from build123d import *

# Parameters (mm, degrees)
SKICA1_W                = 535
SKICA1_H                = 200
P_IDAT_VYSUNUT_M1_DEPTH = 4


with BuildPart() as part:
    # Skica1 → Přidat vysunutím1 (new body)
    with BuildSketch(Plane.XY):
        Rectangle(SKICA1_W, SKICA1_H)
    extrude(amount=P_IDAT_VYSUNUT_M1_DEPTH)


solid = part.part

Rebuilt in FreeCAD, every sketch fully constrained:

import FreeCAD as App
import Part
import Sketcher

V = App.Vector


def add_polygon(sketch, points):
    """Adds a closed chain of lines whose ends are joined by coincident constraints."""
    first, n = sketch.GeometryCount, len(points)
    for a, b in zip(points, points[1:] + points[:1]):
        sketch.addGeometry(Part.LineSegment(App.Vector(*a, 0), App.Vector(*b, 0)), False)
    for i in range(n):
        sketch.addConstraint(Sketcher.Constraint("Coincident", first + i, 2, first + (i + 1) % n, 1))

doc = App.newDocument("Part")
body = doc.addObject("PartDesign::Body", "Body")

sketch1 = body.newObject("Sketcher::SketchObject", "Sketch")
sketch1.AttachmentSupport = (doc.getObject("XY_Plane"), [""])
sketch1.MapMode = "FlatFace"
add_polygon(sketch1, [(-268, 100), (-268, -100), (268, -100), (268, 100)])
sketch1.addConstraint(Sketcher.Constraint("Vertical", 0))
sketch1.addConstraint(Sketcher.Constraint("Horizontal", 1))
sketch1.addConstraint(Sketcher.Constraint("Vertical", 2))
sketch1.addConstraint(Sketcher.Constraint("Horizontal", 3))
sketch1.addConstraint(Sketcher.Constraint("Symmetric", 0, 2, 2, 2, -1, 1))
sketch1.addConstraint(Sketcher.Constraint("DistanceX", 1, 1, 1, 2, 535.0))
sketch1.addConstraint(Sketcher.Constraint("DistanceY", 0, 2, 0, 1, 200.0))
pad1 = body.newObject("PartDesign::Pad", "Pad")
pad1.Profile = sketch1
pad1.Length = 4

doc.recompute()
